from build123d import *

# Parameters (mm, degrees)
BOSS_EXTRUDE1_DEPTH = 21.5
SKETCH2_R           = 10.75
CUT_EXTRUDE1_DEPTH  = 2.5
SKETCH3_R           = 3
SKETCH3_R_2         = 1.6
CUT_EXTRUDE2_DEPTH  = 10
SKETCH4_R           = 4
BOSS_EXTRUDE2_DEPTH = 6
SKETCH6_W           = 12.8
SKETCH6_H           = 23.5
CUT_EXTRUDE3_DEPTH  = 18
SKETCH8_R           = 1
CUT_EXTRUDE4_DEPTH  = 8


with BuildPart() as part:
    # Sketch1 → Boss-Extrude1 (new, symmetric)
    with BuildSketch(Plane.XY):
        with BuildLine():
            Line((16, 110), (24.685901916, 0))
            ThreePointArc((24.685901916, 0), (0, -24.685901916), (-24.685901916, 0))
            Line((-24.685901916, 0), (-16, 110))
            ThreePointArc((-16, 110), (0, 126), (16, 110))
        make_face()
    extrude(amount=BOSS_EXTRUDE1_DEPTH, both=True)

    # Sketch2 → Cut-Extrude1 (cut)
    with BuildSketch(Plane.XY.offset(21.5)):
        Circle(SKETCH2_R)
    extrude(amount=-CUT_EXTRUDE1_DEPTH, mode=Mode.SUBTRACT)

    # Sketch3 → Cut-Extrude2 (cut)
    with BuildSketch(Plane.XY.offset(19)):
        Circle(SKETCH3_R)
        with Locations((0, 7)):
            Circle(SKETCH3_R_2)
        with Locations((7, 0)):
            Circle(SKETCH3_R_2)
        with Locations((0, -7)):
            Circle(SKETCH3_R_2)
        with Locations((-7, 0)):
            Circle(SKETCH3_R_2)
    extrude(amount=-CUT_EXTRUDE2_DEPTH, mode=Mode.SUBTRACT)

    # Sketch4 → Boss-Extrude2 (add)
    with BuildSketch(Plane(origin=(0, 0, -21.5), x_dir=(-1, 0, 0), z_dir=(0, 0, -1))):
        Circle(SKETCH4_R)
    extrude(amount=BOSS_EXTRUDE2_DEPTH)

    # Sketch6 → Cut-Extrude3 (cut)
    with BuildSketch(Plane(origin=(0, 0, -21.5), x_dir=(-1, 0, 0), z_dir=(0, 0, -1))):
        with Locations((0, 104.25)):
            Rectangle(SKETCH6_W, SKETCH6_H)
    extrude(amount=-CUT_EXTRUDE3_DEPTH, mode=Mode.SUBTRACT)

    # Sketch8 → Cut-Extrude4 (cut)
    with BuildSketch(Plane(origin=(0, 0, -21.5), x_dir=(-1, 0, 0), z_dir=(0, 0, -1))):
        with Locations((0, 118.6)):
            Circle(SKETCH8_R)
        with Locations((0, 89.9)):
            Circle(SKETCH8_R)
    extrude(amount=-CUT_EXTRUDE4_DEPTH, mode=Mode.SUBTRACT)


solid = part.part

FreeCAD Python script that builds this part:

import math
import FreeCAD as App
import Part
import Sketcher
from FreeCAD import Vector
Q = App.Units.Quantity

doc = App.newDocument("Part")
params = doc.addObject("Spreadsheet::Sheet", "Params")
for row, (alias, value) in enumerate([
    ("sketch1_radius", "16 mm"),
    ("pad1_length", "43 mm"),
    ("sketch2_diameter", "21.5 mm"),
    ("pocket1_length", "2.5 mm"),
    ("sketch3_diameter", "6 mm"),
    ("sketch3_diameter2", "3.2 mm"),
    ("pocket2_length", "10 mm"),
    ("sketch4_diameter", "8 mm"),
    ("pad2_length", "6 mm"),
    ("sketch5_width", "12.8 mm"),
    ("sketch5_height", "23.5 mm"),
    ("pocket3_length", "18 mm"),
    ("sketch6_diameter", "2 mm"),
    ("pocket4_length", "8 mm"),
], start=1):
    params.set(f"A{row}", alias)
    params.set(f"B{row}", "=" + value)
    params.setAlias(f"B{row}", alias)

body = doc.addObject("PartDesign::Body", "Body")

sketch1 = body.newObject("Sketcher::SketchObject", "Sketch")
sketch1.AttachmentSupport = (doc.getObject("XY_Plane"), [""])
sketch1.MapMode = "FlatFace"
sketch1.addGeometry(Part.LineSegment(Vector(25, 0, 0), Vector(16, 110, 0)), False)
sketch1.addGeometry(Part.ArcOfCircle(Part.Circle(Vector(0, 110, 0), Vector(0, 0, 1), 16), math.radians(0), math.radians(180)), False)
sketch1.addGeometry(Part.LineSegment(Vector(-16, 110, 0), Vector(-25, 0, 0)), False)
sketch1.addGeometry(Part.ArcOfCircle(Part.Circle(Vector(0, 0, 0), Vector(0, 0, 1), 25), math.radians(180), math.radians(360)), False)
sketch1.addConstraint(Sketcher.Constraint("Coincident", 0, 2, 1, 1))
sketch1.addConstraint(Sketcher.Constraint("Coincident", 1, 2, 2, 1))
sketch1.addConstraint(Sketcher.Constraint("Coincident", 2, 2, 3, 1))
sketch1.addConstraint(Sketcher.Constraint("Coincident", 3, 2, 0, 1))
sketch1.addConstraint(Sketcher.Constraint("Coincident", 3, 3, -1, 1))
sketch1.addConstraint(Sketcher.Constraint("Symmetric", 0, 2, 1, 2, -2))
sketch1.addConstraint(Sketcher.Constraint("PointOnObject", 2, 2, -1))
sketch1.addConstraint(Sketcher.Constraint("PointOnObject", 3, 2, -1))
sketch1.addConstraint(Sketcher.Constraint("Horizontal", 1, 3, 0, 2))
sketch1.addConstraint(Sketcher.Constraint("Radius", 1, Q("16 mm")))
sketch1.addConstraint(Sketcher.Constraint("DistanceY", -1, 1, 1, 3, Q("110 mm")))
sketch1.addConstraint(Sketcher.Constraint("Radius", 3, Q("24.685902 mm")))
sketch1.setExpression("Constraints[9]", "Params.sketch1_radius")
pad1 = body.newObject("PartDesign::Pad", "Pad")
pad1.Profile = sketch1
pad1.setExpression("Length", "Params.pad1_length")
pad1.Midplane = True

sketch2 = body.newObject("Sketcher::SketchObject", "Sketch001")
sketch2.AttachmentSupport = (doc.getObject("XY_Plane"), [""])
sketch2.MapMode = "FlatFace"
sketch2.AttachmentOffset = App.Placement(Vector(0, 0, 21.5), App.Rotation())
sketch2.addGeometry(Part.Circle(Vector(0, 0, 0), Vector(0, 0, 1), 11), False)
sketch2.addConstraint(Sketcher.Constraint("Coincident", 0, 3, -1, 1))
sketch2.addConstraint(Sketcher.Constraint("Diameter", 0, Q("21.5 mm")))
sketch2.setExpression("Constraints[1]", "Params.sketch2_diameter")
pocket1 = body.newObject("PartDesign::Pocket", "Pocket")
pocket1.Profile = sketch2
pocket1.setExpression("Length", "Params.pocket1_length")

sketch3 = body.newObject("Sketcher::SketchObject", "Sketch002")
sketch3.AttachmentSupport = (doc.getObject("XY_Plane"), [""])
sketch3.MapMode = "FlatFace"
sketch3.AttachmentOffset = App.Placement(Vector(0, 0, 19), App.Rotation())
sketch3.addGeometry(Part.Circle(Vector(0, 0, 0), Vector(0, 0, 1), 3), False)
sketch3.addGeometry(Part.Circle(Vector(0, 7, 0), Vector(0, 0, 1), 1.6), False)
sketch3.addGeometry(Part.Circle(Vector(7, 0, 0), Vector(0, 0, 1), 1.6), False)
sketch3.addGeometry(Part.Circle(Vector(0, -7, 0), Vector(0, 0, 1), 1.6), False)
sketch3.addGeometry(Part.Circle(Vector(-7, 0, 0), Vector(0, 0, 1), 1.6), False)
sketch3.addConstraint(Sketcher.Constraint("Coincident", 0, 3, -1, 1))
sketch3.addConstraint(Sketcher.Constraint("Equal", 1, 2))
sketch3.addConstraint(Sketcher.Constraint("Equal", 2, 3))
sketch3.addConstraint(Sketcher.Constraint("Equal", 3, 4))
sketch3.addConstraint(Sketcher.Constraint("Symmetric", 1, 3, 3, 3, -1, 1))
sketch3.addConstraint(Sketcher.Constraint("Symmetric", 2, 3, 4, 3, -1, 1))
sketch3.addConstraint(Sketcher.Constraint("PointOnObject", 1, 3, -2))
sketch3.addConstraint(Sketcher.Constraint("PointOnObject", 2, 3, -1))
sketch3.addConstraint(Sketcher.Constraint("Diameter", 0, Q("6 mm")))
sketch3.addConstraint(Sketcher.Constraint("Diameter", 1, Q("3.2 mm")))
sketch3.addConstraint(Sketcher.Constraint("DistanceY", -1, 1, 1, 3, Q("7 mm")))
sketch3.addConstraint(Sketcher.Constraint("DistanceX", -1, 1, 2, 3, Q("7 mm")))
sketch3.setExpression("Constraints[8]", "Params.sketch3_diameter")
sketch3.setExpression("Constraints[9]", "Params.sketch3_diameter2")
pocket2 = body.newObject("PartDesign::Pocket", "Pocket001")
pocket2.Profile = sketch3
pocket2.setExpression("Length", "Params.pocket2_length")

sketch4 = body.newObject("Sketcher::SketchObject", "Sketch003")
sketch4.AttachmentSupport = (doc.getObject("XY_Plane"), [""])
sketch4.MapMode = "FlatFace"
sketch4.AttachmentOffset = App.Placement(Vector(0, 0, -21.5), App.Rotation())
sketch4.addGeometry(Part.Circle(Vector(0, 0, 0), Vector(0, 0, 1), 4), False)
sketch4.addConstraint(Sketcher.Constraint("Coincident", 0, 3, -1, 1))
sketch4.addConstraint(Sketcher.Constraint("Diameter", 0, Q("8 mm")))
sketch4.setExpression("Constraints[1]", "Params.sketch4_diameter")
pad2 = body.newObject("PartDesign::Pad", "Pad001")
pad2.Profile = sketch4
pad2.setExpression("Length", "Params.pad2_length")
pad2.Reversed = True

sketch5 = body.newObject("Sketcher::SketchObject", "Sketch004")
sketch5.AttachmentSupport = (doc.getObject("XY_Plane"), [""])
sketch5.MapMode = "FlatFace"
sketch5.AttachmentOffset = App.Placement(Vector(0, 0, -21.5), App.Rotation())
sketch5.addGeometry(Part.LineSegment(Vector(6, 116, 0), Vector(6, 92, 0)), False)
sketch5.addGeometry(Part.LineSegment(Vector(6, 92, 0), Vector(-6, 92, 0)), False)
sketch5.addGeometry(Part.LineSegment(Vector(-6, 92, 0), Vector(-6, 116, 0)), False)
sketch5.addGeometry(Part.LineSegment(Vector(-6, 116, 0), Vector(6, 116, 0)), False)
sketch5.addConstraint(Sketcher.Constraint("Coincident", 0, 2, 1, 1))
sketch5.addConstraint(Sketcher.Constraint("Coincident", 1, 2, 2, 1))
sketch5.addConstraint(Sketcher.Constraint("Coincident", 2, 2, 3, 1))
sketch5.addConstraint(Sketcher.Constraint("Coincident", 3, 2, 0, 1))
sketch5.addConstraint(Sketcher.Constraint("Vertical", 0))
sketch5.addConstraint(Sketcher.Constraint("Horizontal", 1))
sketch5.addConstraint(Sketcher.Constraint("Vertical", 2))
sketch5.addConstraint(Sketcher.Constraint("Horizontal", 3))
sketch5.addConstraint(Sketcher.Constraint("DistanceX", 1, 2, 1, 1, Q("12.8 mm")))
sketch5.addConstraint(Sketcher.Constraint("DistanceY", 0, 2, 0, 1, Q("23.5 mm")))
sketch5.addConstraint(Sketcher.Constraint("DistanceY", -1, 1, 2, 2, Q("116 mm")))
sketch5.addConstraint(Sketcher.Constraint("DistanceX", -1, 1, 0, 2, Q("6.4 mm")))
sketch5.setExpression("Constraints[8]", "Params.sketch5_width")
sketch5.setExpression("Constraints[9]", "Params.sketch5_height")
pocket3 = body.newObject("PartDesign::Pocket", "Pocket002")
pocket3.Profile = sketch5
pocket3.setExpression("Length", "Params.pocket3_length")
pocket3.Reversed = True

sketch6 = body.newObject("Sketcher::SketchObject", "Sketch005")
sketch6.AttachmentSupport = (doc.getObject("XY_Plane"), [""])
sketch6.MapMode = "FlatFace"
sketch6.AttachmentOffset = App.Placement(Vector(0, 0, -21.5), App.Rotation())
sketch6.addGeometry(Part.Circle(Vector(0, 118.6, 0), Vector(0, 0, 1), 1), False)
sketch6.addGeometry(Part.Circle(Vector(0, 89.9, 0), Vector(0, 0, 1), 1), False)
sketch6.addConstraint(Sketcher.Constraint("Equal", 0, 1))
sketch6.addConstraint(Sketcher.Constraint("PointOnObject", 0, 3, -2))
sketch6.addConstraint(Sketcher.Constraint("PointOnObject", 1, 3, -2))
sketch6.addConstraint(Sketcher.Constraint("Diameter", 0, Q("2 mm")))
sketch6.addConstraint(Sketcher.Constraint("DistanceY", -1, 1, 0, 3, Q("118.6 mm")))
sketch6.addConstraint(Sketcher.Constraint("DistanceY", -1, 1, 1, 3, Q("89.9 mm")))
sketch6.setExpression("Constraints[3]", "Params.sketch6_diameter")
pocket4 = body.newObject("PartDesign::Pocket", "Pocket003")
pocket4.Profile = sketch6
pocket4.setExpression("Length", "Params.pocket4_length")
pocket4.Reversed = True

doc.recompute()
